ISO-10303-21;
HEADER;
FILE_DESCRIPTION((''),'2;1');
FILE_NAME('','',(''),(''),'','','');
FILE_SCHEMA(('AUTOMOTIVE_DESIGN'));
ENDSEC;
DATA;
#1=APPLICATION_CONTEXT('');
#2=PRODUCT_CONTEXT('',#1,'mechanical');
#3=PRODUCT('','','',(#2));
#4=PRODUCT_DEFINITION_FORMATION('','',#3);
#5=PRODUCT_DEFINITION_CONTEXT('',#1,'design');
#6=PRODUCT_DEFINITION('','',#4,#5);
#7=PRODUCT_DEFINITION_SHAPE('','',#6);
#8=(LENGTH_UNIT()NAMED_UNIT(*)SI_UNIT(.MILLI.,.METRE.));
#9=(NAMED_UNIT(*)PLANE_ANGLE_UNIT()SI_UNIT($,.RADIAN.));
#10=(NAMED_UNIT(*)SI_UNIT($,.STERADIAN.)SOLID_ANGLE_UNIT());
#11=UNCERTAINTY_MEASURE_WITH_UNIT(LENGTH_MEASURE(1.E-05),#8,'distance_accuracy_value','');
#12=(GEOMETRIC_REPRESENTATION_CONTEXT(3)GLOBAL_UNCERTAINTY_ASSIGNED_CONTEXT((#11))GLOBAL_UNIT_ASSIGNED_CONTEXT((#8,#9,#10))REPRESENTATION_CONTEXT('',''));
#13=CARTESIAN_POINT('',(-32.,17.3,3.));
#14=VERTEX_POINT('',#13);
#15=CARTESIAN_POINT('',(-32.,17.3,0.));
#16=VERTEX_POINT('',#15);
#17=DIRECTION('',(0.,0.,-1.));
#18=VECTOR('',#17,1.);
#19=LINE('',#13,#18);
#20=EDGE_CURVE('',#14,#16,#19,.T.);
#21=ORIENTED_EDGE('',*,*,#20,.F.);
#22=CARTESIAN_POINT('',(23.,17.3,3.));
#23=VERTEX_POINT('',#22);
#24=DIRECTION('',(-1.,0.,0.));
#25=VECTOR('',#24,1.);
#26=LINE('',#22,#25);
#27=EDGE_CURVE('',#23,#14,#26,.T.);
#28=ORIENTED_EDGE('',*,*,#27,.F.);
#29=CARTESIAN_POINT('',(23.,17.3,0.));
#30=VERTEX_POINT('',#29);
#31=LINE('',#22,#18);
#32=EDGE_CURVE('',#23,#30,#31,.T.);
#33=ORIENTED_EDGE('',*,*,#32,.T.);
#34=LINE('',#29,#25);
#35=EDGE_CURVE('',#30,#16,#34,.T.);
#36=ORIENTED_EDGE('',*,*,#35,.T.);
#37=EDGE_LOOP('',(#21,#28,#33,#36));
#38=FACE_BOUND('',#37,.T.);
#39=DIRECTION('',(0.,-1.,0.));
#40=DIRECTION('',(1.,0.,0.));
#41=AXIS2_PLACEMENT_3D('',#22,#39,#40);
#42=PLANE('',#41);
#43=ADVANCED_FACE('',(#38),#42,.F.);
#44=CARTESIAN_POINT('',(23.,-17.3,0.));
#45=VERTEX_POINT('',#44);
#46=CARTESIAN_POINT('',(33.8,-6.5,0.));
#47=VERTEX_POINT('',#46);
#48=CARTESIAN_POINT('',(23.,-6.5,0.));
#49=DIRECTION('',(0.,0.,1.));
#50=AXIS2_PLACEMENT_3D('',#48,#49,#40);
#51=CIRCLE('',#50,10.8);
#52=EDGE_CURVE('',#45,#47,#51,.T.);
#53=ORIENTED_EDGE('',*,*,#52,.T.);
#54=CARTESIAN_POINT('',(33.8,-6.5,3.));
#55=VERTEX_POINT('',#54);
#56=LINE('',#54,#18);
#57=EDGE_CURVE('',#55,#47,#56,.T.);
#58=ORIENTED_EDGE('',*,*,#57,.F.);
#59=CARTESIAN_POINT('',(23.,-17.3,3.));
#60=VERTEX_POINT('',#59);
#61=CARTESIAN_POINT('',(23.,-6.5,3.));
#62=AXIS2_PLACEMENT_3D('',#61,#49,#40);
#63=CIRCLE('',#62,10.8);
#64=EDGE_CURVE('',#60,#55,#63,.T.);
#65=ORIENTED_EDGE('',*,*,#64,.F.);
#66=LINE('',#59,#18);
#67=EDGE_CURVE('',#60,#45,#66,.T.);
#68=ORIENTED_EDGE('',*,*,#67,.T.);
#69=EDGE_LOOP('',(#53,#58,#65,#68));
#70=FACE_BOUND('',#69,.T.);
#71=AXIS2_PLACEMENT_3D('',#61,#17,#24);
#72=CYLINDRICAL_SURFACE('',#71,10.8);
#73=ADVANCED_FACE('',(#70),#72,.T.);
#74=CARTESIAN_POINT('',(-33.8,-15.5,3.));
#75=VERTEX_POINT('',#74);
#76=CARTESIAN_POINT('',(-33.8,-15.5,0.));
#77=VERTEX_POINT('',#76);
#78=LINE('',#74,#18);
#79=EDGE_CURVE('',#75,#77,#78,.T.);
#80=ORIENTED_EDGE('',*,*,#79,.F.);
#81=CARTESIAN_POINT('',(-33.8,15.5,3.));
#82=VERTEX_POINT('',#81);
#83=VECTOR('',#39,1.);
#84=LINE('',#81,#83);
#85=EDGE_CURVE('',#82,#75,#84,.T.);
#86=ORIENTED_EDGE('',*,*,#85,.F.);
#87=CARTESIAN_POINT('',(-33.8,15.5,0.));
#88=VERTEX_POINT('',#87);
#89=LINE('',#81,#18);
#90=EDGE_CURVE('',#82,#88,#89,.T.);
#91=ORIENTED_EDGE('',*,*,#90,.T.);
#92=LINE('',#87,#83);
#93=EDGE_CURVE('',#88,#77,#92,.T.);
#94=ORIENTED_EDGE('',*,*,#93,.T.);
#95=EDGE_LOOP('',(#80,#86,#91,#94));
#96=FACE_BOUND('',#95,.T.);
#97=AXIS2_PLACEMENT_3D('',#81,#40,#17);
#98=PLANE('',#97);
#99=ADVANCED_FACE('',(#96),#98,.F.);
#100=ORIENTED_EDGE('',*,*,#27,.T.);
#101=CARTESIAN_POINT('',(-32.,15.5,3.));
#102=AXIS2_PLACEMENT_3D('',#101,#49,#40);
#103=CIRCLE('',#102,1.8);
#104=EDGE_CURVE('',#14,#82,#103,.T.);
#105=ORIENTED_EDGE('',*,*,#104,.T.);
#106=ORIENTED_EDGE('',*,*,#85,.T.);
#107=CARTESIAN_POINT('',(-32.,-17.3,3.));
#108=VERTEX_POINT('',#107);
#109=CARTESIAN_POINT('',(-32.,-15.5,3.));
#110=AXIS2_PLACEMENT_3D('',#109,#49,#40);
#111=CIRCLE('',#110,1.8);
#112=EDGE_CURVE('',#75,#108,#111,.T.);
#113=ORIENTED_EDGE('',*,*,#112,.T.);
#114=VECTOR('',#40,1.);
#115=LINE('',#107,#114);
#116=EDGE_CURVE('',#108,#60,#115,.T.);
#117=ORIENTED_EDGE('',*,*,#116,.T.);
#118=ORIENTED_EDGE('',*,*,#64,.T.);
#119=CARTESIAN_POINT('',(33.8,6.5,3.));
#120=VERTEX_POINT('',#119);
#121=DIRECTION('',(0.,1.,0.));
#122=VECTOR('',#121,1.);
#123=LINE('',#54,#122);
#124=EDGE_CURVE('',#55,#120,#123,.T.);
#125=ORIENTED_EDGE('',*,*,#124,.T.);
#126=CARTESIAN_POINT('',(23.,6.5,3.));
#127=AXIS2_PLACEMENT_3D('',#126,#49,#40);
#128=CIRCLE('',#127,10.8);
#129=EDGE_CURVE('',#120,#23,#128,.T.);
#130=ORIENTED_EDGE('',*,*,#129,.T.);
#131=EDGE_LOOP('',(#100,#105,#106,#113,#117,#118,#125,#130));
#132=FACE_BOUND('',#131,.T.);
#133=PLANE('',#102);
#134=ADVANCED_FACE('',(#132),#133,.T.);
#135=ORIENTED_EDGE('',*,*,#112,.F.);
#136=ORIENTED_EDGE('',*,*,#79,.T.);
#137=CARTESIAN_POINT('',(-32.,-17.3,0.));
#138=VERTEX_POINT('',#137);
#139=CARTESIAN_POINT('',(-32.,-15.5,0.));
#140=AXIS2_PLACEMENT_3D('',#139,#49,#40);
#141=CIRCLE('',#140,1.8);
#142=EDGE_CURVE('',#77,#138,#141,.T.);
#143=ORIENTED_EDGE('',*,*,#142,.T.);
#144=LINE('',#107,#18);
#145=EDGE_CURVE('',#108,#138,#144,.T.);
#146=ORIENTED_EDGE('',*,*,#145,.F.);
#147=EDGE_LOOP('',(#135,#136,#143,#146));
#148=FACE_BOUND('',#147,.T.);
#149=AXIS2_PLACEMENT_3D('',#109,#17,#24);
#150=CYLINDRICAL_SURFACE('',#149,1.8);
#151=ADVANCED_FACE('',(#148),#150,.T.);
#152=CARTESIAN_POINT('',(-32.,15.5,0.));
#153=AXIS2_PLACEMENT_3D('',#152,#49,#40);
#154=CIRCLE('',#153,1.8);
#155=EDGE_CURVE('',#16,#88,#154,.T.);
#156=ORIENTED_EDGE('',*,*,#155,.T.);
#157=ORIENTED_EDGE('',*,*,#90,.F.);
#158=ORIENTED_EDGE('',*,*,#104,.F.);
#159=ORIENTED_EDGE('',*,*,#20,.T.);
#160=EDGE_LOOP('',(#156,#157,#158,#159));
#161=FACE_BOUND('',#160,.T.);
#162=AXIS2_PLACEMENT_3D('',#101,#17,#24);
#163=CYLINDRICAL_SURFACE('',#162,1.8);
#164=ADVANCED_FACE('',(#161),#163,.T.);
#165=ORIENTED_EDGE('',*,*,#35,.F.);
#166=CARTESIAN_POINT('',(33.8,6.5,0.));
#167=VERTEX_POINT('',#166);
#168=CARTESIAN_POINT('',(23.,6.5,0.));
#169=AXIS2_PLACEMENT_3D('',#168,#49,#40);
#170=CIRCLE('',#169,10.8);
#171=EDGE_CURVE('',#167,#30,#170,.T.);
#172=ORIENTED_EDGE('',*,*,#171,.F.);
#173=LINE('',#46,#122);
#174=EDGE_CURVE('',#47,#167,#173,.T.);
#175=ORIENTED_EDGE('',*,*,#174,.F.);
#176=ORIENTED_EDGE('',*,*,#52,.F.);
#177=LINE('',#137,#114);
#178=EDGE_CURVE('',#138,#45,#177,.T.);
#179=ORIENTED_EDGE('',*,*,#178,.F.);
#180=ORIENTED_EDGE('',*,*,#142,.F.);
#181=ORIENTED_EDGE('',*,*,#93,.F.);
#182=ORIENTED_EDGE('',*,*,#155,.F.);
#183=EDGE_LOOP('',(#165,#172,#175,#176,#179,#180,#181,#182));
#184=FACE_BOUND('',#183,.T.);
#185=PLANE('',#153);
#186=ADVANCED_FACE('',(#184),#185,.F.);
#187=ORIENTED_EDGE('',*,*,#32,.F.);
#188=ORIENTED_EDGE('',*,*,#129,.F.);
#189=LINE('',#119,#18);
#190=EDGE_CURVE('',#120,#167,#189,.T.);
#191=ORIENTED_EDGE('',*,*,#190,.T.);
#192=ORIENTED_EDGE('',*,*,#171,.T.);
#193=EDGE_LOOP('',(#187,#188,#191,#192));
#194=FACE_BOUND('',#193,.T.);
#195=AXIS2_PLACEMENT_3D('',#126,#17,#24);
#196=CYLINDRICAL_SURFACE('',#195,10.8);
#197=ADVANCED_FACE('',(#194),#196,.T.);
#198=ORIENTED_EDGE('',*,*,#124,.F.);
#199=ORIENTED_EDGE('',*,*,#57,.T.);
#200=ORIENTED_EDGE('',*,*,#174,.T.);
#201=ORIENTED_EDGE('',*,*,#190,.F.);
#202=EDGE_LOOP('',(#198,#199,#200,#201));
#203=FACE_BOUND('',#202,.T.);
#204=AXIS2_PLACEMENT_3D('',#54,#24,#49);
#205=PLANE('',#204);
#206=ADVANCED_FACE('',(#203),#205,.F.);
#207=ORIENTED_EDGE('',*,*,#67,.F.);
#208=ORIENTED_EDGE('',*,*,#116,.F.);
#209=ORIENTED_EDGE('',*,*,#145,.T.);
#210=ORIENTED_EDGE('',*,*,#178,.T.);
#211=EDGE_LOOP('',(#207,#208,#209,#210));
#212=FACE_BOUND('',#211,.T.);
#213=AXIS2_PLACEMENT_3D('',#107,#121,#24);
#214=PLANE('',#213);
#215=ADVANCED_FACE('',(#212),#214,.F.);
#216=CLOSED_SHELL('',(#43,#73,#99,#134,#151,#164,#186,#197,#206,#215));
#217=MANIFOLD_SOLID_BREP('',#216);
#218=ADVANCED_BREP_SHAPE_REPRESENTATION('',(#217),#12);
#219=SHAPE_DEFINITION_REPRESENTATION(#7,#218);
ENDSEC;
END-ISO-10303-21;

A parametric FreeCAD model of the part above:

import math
import FreeCAD as App
import Part
import Sketcher

V = App.Vector
Q = App.Units.Quantity

doc = App.newDocument("Part")
body = doc.addObject("PartDesign::Body", "Body")

sketch1 = body.newObject("Sketcher::SketchObject", "Sketch")
sketch1.AttachmentSupport = (doc.getObject("XY_Plane"), [""])
sketch1.MapMode = "FlatFace"
sketch1.addGeometry([
    Part.LineSegment(V(23, 17.3, 0), V(-32, 17.3, 0)),
    Part.ArcOfCircle(Part.Circle(V(-32, 15.5, 0), V(0, 0, 1), 1.8), math.radians(90), math.radians(180)),
    Part.LineSegment(V(-33.8, 15.5, 0), V(-33.8, -15.5, 0)),
    Part.ArcOfCircle(Part.Circle(V(-32, -15.5, 0), V(0, 0, 1), 1.8), math.radians(180), math.radians(270)),
    Part.LineSegment(V(-32, -17.3, 0), V(23, -17.3, 0)),
    Part.ArcOfCircle(Part.Circle(V(23, -6.5, 0), V(0, 0, 1), 10.8), math.radians(-90), math.radians(0)),
    Part.LineSegment(V(33.8, -6.5, 0), V(33.8, 6.5, 0)),
    Part.ArcOfCircle(Part.Circle(V(23, 6.5, 0), V(0, 0, 1), 10.8), math.radians(0), math.radians(90)),
], False)
sketch1.addConstraint([
    Sketcher.Constraint("Tangent", 0, 2, 1, 1),
    Sketcher.Constraint("Tangent", 1, 2, 2, 1),
    Sketcher.Constraint("Tangent", 2, 2, 3, 1),
    Sketcher.Constraint("Tangent", 3, 2, 4, 1),
    Sketcher.Constraint("Tangent", 4, 2, 5, 1),
    Sketcher.Constraint("Tangent", 5, 2, 6, 1),
    Sketcher.Constraint("Tangent", 6, 2, 7, 1),
    Sketcher.Constraint("Tangent", 7, 2, 0, 1),
    Sketcher.Constraint("Horizontal", 0),
    Sketcher.Constraint("Vertical", 2),
    Sketcher.Constraint("Horizontal", 4),
    Sketcher.Constraint("Vertical", 6),
    Sketcher.Constraint("Equal", 1, 3),
    Sketcher.Constraint("Equal", 5, 7),
    Sketcher.Constraint("Radius", 1, Q("1.8 mm")),
    Sketcher.Constraint("Radius", 5, Q("10.8 mm")),
    Sketcher.Constraint("DistanceX", 0, 2, 0, 1, Q("55 mm")),
    Sketcher.Constraint("DistanceY", 2, 2, 2, 1, Q("31 mm")),
    Sketcher.Constraint("DistanceX", 1, 3, -1, 1, Q("32 mm")),
    Sketcher.Constraint("DistanceY", -1, 1, 1, 3, Q("15.5 mm")),
])
pad1 = body.newObject("PartDesign::Pad", "Pad")
pad1.Profile = sketch1
pad1.Length = 3

doc.recompute()
